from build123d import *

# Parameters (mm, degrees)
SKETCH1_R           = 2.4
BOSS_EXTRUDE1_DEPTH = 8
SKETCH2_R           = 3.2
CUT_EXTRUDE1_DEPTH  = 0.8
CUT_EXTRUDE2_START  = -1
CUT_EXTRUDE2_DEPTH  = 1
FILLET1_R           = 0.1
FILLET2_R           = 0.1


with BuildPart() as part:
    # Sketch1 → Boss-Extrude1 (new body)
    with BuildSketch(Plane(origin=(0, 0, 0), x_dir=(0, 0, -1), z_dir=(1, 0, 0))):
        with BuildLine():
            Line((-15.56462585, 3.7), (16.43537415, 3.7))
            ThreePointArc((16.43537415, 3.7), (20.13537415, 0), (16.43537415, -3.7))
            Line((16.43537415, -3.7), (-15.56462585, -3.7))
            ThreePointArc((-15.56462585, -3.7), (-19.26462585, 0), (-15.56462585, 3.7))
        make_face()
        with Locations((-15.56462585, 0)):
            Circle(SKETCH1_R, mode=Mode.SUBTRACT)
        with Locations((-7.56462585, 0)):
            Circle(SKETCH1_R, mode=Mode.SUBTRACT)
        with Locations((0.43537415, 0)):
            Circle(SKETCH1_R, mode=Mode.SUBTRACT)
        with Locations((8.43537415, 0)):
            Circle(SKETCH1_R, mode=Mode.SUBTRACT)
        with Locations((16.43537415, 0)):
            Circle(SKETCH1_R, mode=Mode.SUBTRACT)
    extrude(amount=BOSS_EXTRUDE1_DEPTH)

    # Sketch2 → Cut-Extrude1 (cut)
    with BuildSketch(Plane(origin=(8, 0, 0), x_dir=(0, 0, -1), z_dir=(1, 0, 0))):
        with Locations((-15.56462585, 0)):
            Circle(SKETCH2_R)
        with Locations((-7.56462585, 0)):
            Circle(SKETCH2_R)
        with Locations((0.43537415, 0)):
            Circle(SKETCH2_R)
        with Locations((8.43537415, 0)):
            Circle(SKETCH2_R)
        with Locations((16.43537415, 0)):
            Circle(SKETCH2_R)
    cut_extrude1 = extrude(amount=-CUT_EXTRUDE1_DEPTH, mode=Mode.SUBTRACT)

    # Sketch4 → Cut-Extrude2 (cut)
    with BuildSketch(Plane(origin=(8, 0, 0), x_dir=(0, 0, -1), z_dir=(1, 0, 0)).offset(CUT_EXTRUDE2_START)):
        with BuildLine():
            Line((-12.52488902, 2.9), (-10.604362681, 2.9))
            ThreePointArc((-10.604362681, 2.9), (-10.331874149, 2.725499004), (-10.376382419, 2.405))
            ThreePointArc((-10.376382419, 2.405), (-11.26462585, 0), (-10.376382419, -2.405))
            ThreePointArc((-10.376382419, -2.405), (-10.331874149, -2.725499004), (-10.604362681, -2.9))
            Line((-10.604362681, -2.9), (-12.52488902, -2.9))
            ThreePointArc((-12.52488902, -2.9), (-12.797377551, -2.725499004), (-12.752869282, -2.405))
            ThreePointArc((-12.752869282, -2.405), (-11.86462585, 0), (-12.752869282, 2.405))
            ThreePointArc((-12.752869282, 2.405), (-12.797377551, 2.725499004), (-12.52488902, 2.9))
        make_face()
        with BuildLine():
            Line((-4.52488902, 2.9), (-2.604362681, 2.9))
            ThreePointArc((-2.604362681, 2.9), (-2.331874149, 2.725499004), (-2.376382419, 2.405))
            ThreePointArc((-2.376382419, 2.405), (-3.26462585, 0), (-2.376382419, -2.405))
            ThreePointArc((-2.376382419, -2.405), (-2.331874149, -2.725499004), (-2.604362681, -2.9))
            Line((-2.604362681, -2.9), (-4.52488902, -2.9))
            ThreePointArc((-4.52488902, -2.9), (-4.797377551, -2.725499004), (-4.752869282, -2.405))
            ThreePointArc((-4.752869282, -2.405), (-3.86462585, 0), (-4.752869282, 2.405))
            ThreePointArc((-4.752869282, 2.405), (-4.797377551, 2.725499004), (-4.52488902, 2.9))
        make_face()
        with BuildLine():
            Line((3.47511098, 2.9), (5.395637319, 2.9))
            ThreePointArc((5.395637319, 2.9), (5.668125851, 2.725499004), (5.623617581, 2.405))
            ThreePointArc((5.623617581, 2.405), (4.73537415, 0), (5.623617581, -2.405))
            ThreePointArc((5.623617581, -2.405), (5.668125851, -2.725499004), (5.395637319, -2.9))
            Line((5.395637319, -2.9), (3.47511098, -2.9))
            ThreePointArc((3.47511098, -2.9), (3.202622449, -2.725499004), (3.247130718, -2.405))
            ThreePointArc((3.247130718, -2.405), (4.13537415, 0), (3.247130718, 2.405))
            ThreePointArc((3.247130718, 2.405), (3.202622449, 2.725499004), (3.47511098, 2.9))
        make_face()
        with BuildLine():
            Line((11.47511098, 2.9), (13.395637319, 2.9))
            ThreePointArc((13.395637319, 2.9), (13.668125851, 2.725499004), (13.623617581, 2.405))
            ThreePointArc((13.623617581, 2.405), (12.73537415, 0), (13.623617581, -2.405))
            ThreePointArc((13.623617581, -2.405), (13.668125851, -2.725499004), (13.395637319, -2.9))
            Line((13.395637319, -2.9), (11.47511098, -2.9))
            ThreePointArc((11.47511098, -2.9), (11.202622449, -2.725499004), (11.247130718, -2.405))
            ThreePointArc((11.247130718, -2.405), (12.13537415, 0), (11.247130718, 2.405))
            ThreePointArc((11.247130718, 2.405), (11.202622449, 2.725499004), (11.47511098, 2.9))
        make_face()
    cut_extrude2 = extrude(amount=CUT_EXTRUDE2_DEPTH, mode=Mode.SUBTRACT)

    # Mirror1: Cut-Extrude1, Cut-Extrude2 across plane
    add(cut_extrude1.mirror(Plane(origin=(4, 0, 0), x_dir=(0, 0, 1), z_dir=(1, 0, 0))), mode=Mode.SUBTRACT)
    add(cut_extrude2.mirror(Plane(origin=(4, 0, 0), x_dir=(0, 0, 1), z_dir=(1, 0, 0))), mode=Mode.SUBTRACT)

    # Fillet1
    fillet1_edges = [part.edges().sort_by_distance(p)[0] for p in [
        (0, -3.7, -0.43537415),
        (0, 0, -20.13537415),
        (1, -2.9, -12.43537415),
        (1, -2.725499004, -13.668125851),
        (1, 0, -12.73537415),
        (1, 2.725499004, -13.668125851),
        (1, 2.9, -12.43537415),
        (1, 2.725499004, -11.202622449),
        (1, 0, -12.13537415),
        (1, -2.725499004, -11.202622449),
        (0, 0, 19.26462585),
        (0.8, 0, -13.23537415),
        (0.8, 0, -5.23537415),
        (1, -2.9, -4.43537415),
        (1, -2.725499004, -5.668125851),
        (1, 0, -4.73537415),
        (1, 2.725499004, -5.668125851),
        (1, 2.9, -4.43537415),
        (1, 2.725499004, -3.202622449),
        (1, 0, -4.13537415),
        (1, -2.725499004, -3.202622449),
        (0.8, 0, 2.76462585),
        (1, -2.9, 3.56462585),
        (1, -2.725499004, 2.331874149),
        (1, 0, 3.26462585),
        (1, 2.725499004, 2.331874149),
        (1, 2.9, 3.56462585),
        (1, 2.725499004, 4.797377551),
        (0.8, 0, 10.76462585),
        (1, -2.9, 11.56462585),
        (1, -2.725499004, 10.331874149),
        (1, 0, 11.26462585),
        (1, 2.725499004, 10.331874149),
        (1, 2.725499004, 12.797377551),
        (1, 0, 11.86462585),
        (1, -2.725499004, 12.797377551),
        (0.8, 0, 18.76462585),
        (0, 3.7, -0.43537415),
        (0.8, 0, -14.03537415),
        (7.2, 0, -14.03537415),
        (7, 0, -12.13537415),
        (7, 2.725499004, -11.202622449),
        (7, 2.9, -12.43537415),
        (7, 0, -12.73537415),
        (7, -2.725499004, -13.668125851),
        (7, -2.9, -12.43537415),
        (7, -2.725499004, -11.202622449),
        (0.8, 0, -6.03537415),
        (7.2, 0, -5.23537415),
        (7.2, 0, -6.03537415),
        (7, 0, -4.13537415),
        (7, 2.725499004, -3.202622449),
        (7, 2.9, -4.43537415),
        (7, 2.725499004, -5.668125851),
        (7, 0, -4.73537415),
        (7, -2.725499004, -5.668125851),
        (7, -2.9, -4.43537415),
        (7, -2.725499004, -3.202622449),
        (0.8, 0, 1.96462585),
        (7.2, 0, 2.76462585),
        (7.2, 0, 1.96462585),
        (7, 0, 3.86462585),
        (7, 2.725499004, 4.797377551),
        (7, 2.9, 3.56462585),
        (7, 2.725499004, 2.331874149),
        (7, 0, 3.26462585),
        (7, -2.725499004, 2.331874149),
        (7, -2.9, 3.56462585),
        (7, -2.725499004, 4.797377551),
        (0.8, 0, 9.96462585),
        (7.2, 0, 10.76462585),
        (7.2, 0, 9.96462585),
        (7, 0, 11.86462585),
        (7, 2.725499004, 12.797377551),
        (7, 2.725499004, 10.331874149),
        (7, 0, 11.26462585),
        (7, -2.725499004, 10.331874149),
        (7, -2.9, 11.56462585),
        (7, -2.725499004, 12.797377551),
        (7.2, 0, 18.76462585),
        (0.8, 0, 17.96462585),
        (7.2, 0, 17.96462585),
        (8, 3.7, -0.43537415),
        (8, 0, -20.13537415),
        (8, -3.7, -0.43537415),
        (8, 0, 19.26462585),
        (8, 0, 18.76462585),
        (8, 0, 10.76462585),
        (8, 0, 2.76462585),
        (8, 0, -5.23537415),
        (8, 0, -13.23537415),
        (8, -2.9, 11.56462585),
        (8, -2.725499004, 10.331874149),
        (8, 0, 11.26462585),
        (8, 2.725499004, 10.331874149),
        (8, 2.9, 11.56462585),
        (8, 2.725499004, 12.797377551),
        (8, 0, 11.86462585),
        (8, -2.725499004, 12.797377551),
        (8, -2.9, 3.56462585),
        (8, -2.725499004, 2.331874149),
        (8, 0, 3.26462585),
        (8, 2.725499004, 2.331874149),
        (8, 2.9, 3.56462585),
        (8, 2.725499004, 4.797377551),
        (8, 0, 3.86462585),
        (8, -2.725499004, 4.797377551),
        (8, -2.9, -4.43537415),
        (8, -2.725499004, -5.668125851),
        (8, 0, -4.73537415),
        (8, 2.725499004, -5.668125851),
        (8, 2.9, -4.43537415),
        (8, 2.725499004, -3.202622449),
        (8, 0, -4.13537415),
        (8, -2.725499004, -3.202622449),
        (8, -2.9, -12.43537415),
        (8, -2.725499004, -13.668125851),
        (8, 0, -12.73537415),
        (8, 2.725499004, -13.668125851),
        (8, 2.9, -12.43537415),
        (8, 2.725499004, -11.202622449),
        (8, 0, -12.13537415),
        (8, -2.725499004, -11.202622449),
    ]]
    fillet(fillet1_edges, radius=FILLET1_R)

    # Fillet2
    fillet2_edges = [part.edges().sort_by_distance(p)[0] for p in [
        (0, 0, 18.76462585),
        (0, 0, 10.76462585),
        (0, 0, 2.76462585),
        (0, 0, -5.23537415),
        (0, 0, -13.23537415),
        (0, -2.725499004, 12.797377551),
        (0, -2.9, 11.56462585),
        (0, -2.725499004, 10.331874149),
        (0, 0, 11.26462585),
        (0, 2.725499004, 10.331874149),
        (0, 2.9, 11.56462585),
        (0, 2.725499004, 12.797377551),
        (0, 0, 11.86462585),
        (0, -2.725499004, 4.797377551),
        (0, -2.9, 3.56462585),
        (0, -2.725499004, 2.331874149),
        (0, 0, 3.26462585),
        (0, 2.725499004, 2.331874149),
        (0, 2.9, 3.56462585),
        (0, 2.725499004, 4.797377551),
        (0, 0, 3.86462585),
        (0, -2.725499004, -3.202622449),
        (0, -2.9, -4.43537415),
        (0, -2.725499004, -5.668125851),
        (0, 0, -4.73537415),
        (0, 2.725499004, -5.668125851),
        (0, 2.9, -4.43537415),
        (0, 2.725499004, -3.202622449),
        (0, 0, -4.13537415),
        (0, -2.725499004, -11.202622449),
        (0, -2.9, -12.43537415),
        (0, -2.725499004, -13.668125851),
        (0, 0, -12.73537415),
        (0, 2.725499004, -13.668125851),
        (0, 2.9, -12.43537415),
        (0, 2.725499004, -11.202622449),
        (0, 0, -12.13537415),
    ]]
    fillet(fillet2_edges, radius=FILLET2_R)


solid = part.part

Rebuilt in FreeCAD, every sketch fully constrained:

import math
import FreeCAD as App
import Part
import Sketcher
Q = App.Units.Quantity


def edges_at(feature, points):
    """Names of the edges that pass closest to the given points."""
    edges = feature.Shape.Edges
    near = lambda p: min(range(len(edges)), key=lambda i: edges[i].distToShape(Part.Vertex(*p))[0])
    return sorted({f"Edge{near(p) + 1}" for p in points})

doc = App.newDocument("Part")
body = doc.addObject("PartDesign::Body", "Body")

# Sketch on YZ plane
sketch1 = body.newObject("Sketcher::SketchObject", "Sketch")
sketch1.AttachmentSupport = (doc.getObject("YZ_Plane"), [""])
sketch1.MapMode = "FlatFace"
sketch1.addGeometry([
    Part.LineSegment(App.Vector(3.7, -16.4, 0), App.Vector(3.7, 15.6, 0)),  # 0
    Part.ArcOfCircle(Part.Circle(App.Vector(0, 15.6, 0), App.Vector(0, 0, 1), 3.7), math.radians(0), math.radians(180)),  # 1
    Part.LineSegment(App.Vector(-3.7, 15.6, 0), App.Vector(-3.7, -16.4, 0)),  # 2
    Part.ArcOfCircle(Part.Circle(App.Vector(0, -16.4, 0), App.Vector(0, 0, 1), 3.7), math.radians(180), math.radians(360)),  # 3
    Part.Circle(App.Vector(0, -16.4, 0), App.Vector(0, 0, 1), 2.4),  # 4
    Part.Circle(App.Vector(0, -8.4, 0), App.Vector(0, 0, 1), 2.4),  # 5
    Part.Circle(App.Vector(0, -0.4, 0), App.Vector(0, 0, 1), 2.4),  # 6
    Part.Circle(App.Vector(0, 7.6, 0), App.Vector(0, 0, 1), 2.4),  # 7
    Part.Circle(App.Vector(0, 15.6, 0), App.Vector(0, 0, 1), 2.4),  # 8
], False)
sketch1.addConstraint([
    Sketcher.Constraint("Tangent", 0, 2, 1, 1),
    Sketcher.Constraint("Tangent", 1, 2, 2, 1),
    Sketcher.Constraint("Tangent", 2, 2, 3, 1),
    Sketcher.Constraint("Tangent", 3, 2, 0, 1),
    Sketcher.Constraint("Vertical", 0),
    Sketcher.Constraint("Vertical", 2),
    Sketcher.Constraint("Coincident", 4, 3, 3, 3),
    Sketcher.Constraint("Coincident", 8, 3, 1, 3),
    Sketcher.Constraint("Equal", 4, 5),
    Sketcher.Constraint("Equal", 5, 6),
    Sketcher.Constraint("Equal", 6, 7),
    Sketcher.Constraint("Equal", 7, 8),
    Sketcher.Constraint("PointOnObject", 1, 3, -2),
    Sketcher.Constraint("PointOnObject", 5, 3, -2),
    Sketcher.Constraint("PointOnObject", 6, 3, -2),
    Sketcher.Constraint("PointOnObject", 7, 3, -2),
    Sketcher.Constraint("Diameter", 4, Q("4.8 mm")),
    Sketcher.Constraint("Radius", 1, Q("3.7 mm")),
    Sketcher.Constraint("DistanceY", 0, 1, 0, 2, Q("32 mm")),
    Sketcher.Constraint("DistanceY", 3, 3, 5, 3, Q("8 mm")),
    Sketcher.Constraint("DistanceY", 5, 3, 6, 3, Q("8 mm")),
    Sketcher.Constraint("DistanceY", 7, 3, 1, 3, Q("8 mm")),
    Sketcher.Constraint("DistanceY", -1, 1, 1, 3, Q("15.564626 mm")),
])
pad1 = body.newObject("PartDesign::Pad", "Pad")
pad1.Profile = sketch1
pad1.Length = 8

# Sketch on YZ plane
sketch2 = body.newObject("Sketcher::SketchObject", "Sketch001")
sketch2.AttachmentSupport = (doc.getObject("YZ_Plane"), [""])
sketch2.MapMode = "FlatFace"
sketch2.AttachmentOffset = App.Placement(App.Vector(0, 0, 8), App.Rotation())
sketch2.addGeometry([
    Part.Circle(App.Vector(0, 15.6, 0), App.Vector(0, 0, 1), 3.2),  # 0
    Part.Circle(App.Vector(0, 7.6, 0), App.Vector(0, 0, 1), 3.2),  # 1
    Part.Circle(App.Vector(0, -0.4, 0), App.Vector(0, 0, 1), 3.2),  # 2
    Part.Circle(App.Vector(0, -8.4, 0), App.Vector(0, 0, 1), 3.2),  # 3
    Part.Circle(App.Vector(0, -16.4, 0), App.Vector(0, 0, 1), 3.2),  # 4
], False)
sketch2.addConstraint([
    Sketcher.Constraint("Equal", 0, 1),
    Sketcher.Constraint("Equal", 1, 2),
    Sketcher.Constraint("Equal", 2, 3),
    Sketcher.Constraint("Equal", 3, 4),
    Sketcher.Constraint("PointOnObject", 0, 3, -2),
    Sketcher.Constraint("PointOnObject", 1, 3, -2),
    Sketcher.Constraint("PointOnObject", 2, 3, -2),
    Sketcher.Constraint("PointOnObject", 3, 3, -2),
    Sketcher.Constraint("PointOnObject", 4, 3, -2),
    Sketcher.Constraint("Diameter", 0, Q("6.4 mm")),
    Sketcher.Constraint("DistanceY", 1, 3, 0, 3, Q("8 mm")),
    Sketcher.Constraint("DistanceY", 2, 3, 1, 3, Q("8 mm")),
    Sketcher.Constraint("DistanceY", 3, 3, 2, 3, Q("8 mm")),
    Sketcher.Constraint("DistanceY", 4, 3, 3, 3, Q("8 mm")),
    Sketcher.Constraint("DistanceY", -1, 1, 0, 3, Q("15.564626 mm")),
])
pocket1 = body.newObject("PartDesign::Pocket", "Pocket")
pocket1.Profile = sketch2
pocket1.Length = 0.8

# Sketch on YZ plane
sketch3 = body.newObject("Sketcher::SketchObject", "Sketch002")
sketch3.AttachmentSupport = (doc.getObject("YZ_Plane"), [""])
sketch3.MapMode = "FlatFace"
sketch3.AttachmentOffset = App.Placement(App.Vector(0, 0, 7), App.Rotation())
sketch3.addGeometry([
    Part.LineSegment(App.Vector(2.9, 10.6, 0), App.Vector(2.9, 12.52, 0)),  # 0
    Part.ArcOfCircle(Part.Circle(App.Vector(2.6, 12.52, 0), App.Vector(0, 0, 1), 0.3), math.radians(0), math.radians(131)),  # 1
    Part.ArcOfCircle(Part.Circle(App.Vector(0, 15.56, 0), App.Vector(0, 0, 1), 3.7), math.radians(-131), math.radians(-49)),  # 2
    Part.ArcOfCircle(Part.Circle(App.Vector(-2.6, 12.52, 0), App.Vector(0, 0, 1), 0.3), math.radians(49), math.radians(180)),  # 3
    Part.LineSegment(App.Vector(-2.9, 12.52, 0), App.Vector(-2.9, 10.6, 0)),  # 4
    Part.ArcOfCircle(Part.Circle(App.Vector(-2.6, 10.6, 0), App.Vector(0, 0, 1), 0.3), math.radians(180), math.radians(311)),  # 5
    Part.ArcOfCircle(Part.Circle(App.Vector(0, 7.56, 0), App.Vector(0, 0, 1), 3.7), math.radians(49), math.radians(131)),  # 6
    Part.ArcOfCircle(Part.Circle(App.Vector(2.6, 10.6, 0), App.Vector(0, 0, 1), 0.3), math.radians(-131), math.radians(0)),  # 7
    Part.LineSegment(App.Vector(2.9, 2.6, 0), App.Vector(2.9, 4.52, 0)),  # 8
    Part.ArcOfCircle(Part.Circle(App.Vector(2.6, 4.52, 0), App.Vector(0, 0, 1), 0.3), math.radians(0), math.radians(131)),  # 9
    Part.ArcOfCircle(Part.Circle(App.Vector(0, 7.56, 0), App.Vector(0, 0, 1), 3.7), math.radians(-131), math.radians(-49)),  # 10
    Part.ArcOfCircle(Part.Circle(App.Vector(-2.6, 4.52, 0), App.Vector(0, 0, 1), 0.3), math.radians(49), math.radians(180)),  # 11
    Part.LineSegment(App.Vector(-2.9, 4.52, 0), App.Vector(-2.9, 2.6, 0)),  # 12
    Part.ArcOfCircle(Part.Circle(App.Vector(-2.6, 2.6, 0), App.Vector(0, 0, 1), 0.3), math.radians(180), math.radians(311)),  # 13
    Part.ArcOfCircle(Part.Circle(App.Vector(0, -0.44, 0), App.Vector(0, 0, 1), 3.7), math.radians(49), math.radians(131)),  # 14
    Part.ArcOfCircle(Part.Circle(App.Vector(2.6, 2.6, 0), App.Vector(0, 0, 1), 0.3), math.radians(-131), math.radians(0)),  # 15
    Part.LineSegment(App.Vector(2.9, -5.4, 0), App.Vector(2.9, -3.48, 0)),  # 16
    Part.ArcOfCircle(Part.Circle(App.Vector(2.6, -3.48, 0), App.Vector(0, 0, 1), 0.3), math.radians(0), math.radians(131)),  # 17
    Part.ArcOfCircle(Part.Circle(App.Vector(0, -0.44, 0), App.Vector(0, 0, 1), 3.7), math.radians(-131), math.radians(-49)),  # 18
    Part.ArcOfCircle(Part.Circle(App.Vector(-2.6, -3.48, 0), App.Vector(0, 0, 1), 0.3), math.radians(49), math.radians(180)),  # 19
    Part.LineSegment(App.Vector(-2.9, -3.48, 0), App.Vector(-2.9, -5.4, 0)),  # 20
    Part.ArcOfCircle(Part.Circle(App.Vector(-2.6, -5.4, 0), App.Vector(0, 0, 1), 0.3), math.radians(180), math.radians(311)),  # 21
    Part.ArcOfCircle(Part.Circle(App.Vector(0, -8.44, 0), App.Vector(0, 0, 1), 3.7), math.radians(49), math.radians(131)),  # 22
    Part.ArcOfCircle(Part.Circle(App.Vector(2.6, -5.4, 0), App.Vector(0, 0, 1), 0.3), math.radians(-131), math.radians(0)),  # 23
    Part.LineSegment(App.Vector(2.9, -13.4, 0), App.Vector(2.9, -11.48, 0)),  # 24
    Part.ArcOfCircle(Part.Circle(App.Vector(2.6, -11.48, 0), App.Vector(0, 0, 1), 0.3), math.radians(0), math.radians(131)),  # 25
    Part.ArcOfCircle(Part.Circle(App.Vector(0, -8.44, 0), App.Vector(0, 0, 1), 3.7), math.radians(-131), math.radians(-49)),  # 26
    Part.ArcOfCircle(Part.Circle(App.Vector(-2.6, -11.48, 0), App.Vector(0, 0, 1), 0.3), math.radians(49), math.radians(180)),  # 27
    Part.LineSegment(App.Vector(-2.9, -11.48, 0), App.Vector(-2.9, -13.4, 0)),  # 28
    Part.ArcOfCircle(Part.Circle(App.Vector(-2.6, -13.4, 0), App.Vector(0, 0, 1), 0.3), math.radians(180), math.radians(311)),  # 29
    Part.ArcOfCircle(Part.Circle(App.Vector(0, -16.44, 0), App.Vector(0, 0, 1), 3.7), math.radians(49), math.radians(131)),  # 30
    Part.ArcOfCircle(Part.Circle(App.Vector(2.6, -13.4, 0), App.Vector(0, 0, 1), 0.3), math.radians(-131), math.radians(0)),  # 31
], False)
sketch3.addConstraint([
    Sketcher.Constraint("Tangent", 0, 2, 1, 1),
    Sketcher.Constraint("Tangent", 1, 2, 2, 2),
    Sketcher.Constraint("Tangent", 2, 1, 3, 1),
    Sketcher.Constraint("Tangent", 3, 2, 4, 1),
    Sketcher.Constraint("Tangent", 4, 2, 5, 1),
    Sketcher.Constraint("Tangent", 5, 2, 6, 2),
    Sketcher.Constraint("Tangent", 6, 1, 7, 1),
    Sketcher.Constraint("Tangent", 7, 2, 0, 1),
    Sketcher.Constraint("Tangent", 8, 2, 9, 1),
    Sketcher.Constraint("Tangent", 9, 2, 10, 2),
    Sketcher.Constraint("Tangent", 10, 1, 11, 1),
    Sketcher.Constraint("Tangent", 11, 2, 12, 1),
    Sketcher.Constraint("Tangent", 12, 2, 13, 1),
    Sketcher.Constraint("Tangent", 13, 2, 14, 2),
    Sketcher.Constraint("Tangent", 14, 1, 15, 1),
    Sketcher.Constraint("Tangent", 15, 2, 8, 1),
    Sketcher.Constraint("Tangent", 16, 2, 17, 1),
    Sketcher.Constraint("Tangent", 17, 2, 18, 2),
    Sketcher.Constraint("Tangent", 18, 1, 19, 1),
    Sketcher.Constraint("Tangent", 19, 2, 20, 1),
    Sketcher.Constraint("Tangent", 20, 2, 21, 1),
    Sketcher.Constraint("Tangent", 21, 2, 22, 2),
    Sketcher.Constraint("Tangent", 22, 1, 23, 1),
    Sketcher.Constraint("Tangent", 23, 2, 16, 1),
    Sketcher.Constraint("Tangent", 24, 2, 25, 1),
    Sketcher.Constraint("Tangent", 25, 2, 26, 2),
    Sketcher.Constraint("Tangent", 26, 1, 27, 1),
    Sketcher.Constraint("Tangent", 27, 2, 28, 1),
    Sketcher.Constraint("Tangent", 28, 2, 29, 1),
    Sketcher.Constraint("Tangent", 29, 2, 30, 2),
    Sketcher.Constraint("Tangent", 30, 1, 31, 1),
    Sketcher.Constraint("Tangent", 31, 2, 24, 1),
    Sketcher.Constraint("Vertical", 0),
    Sketcher.Constraint("Vertical", 4),
    Sketcher.Constraint("Vertical", 8),
    Sketcher.Constraint("Vertical", 12),
    Sketcher.Constraint("Vertical", 16),
    Sketcher.Constraint("Vertical", 20),
    Sketcher.Constraint("Vertical", 24),
    Sketcher.Constraint("Vertical", 28),
    Sketcher.Constraint("Coincident", 10, 3, 6, 3),
    Sketcher.Constraint("Coincident", 18, 3, 14, 3),
    Sketcher.Constraint("Coincident", 26, 3, 22, 3),
    Sketcher.Constraint("Equal", 1, 3),
    Sketcher.Constraint("Equal", 3, 5),
    Sketcher.Constraint("Equal", 2, 6),
    Sketcher.Constraint("Equal", 5, 7),
    Sketcher.Constraint("Equal", 7, 9),
    Sketcher.Constraint("Equal", 6, 10),
    Sketcher.Constraint("Equal", 9, 11),
    Sketcher.Constraint("Equal", 11, 13),
    Sketcher.Constraint("Equal", 10, 14),
    Sketcher.Constraint("Equal", 13, 15),
    Sketcher.Constraint("Equal", 15, 17),
    Sketcher.Constraint("Equal", 14, 18),
    Sketcher.Constraint("Equal", 17, 19),
    Sketcher.Constraint("Equal", 19, 21),
    Sketcher.Constraint("Equal", 18, 22),
    Sketcher.Constraint("Equal", 21, 23),
    Sketcher.Constraint("Equal", 23, 25),
    Sketcher.Constraint("Equal", 22, 26),
    Sketcher.Constraint("Equal", 25, 27),
    Sketcher.Constraint("Equal", 27, 29),
    Sketcher.Constraint("Equal", 26, 30),
    Sketcher.Constraint("Equal", 29, 31),
    Sketcher.Constraint("Symmetric", 1, 3, 3, 3, -2),
    Sketcher.Constraint("Symmetric", 9, 3, 11, 3, -2),
    Sketcher.Constraint("Symmetric", 17, 3, 19, 3, -2),
    Sketcher.Constraint("Symmetric", 25, 3, 27, 3, -2),
    Sketcher.Constraint("PointOnObject", 30, 3, -2),
    Sketcher.Constraint("Vertical", 7, 3, 9, 3),
    Sketcher.Constraint("Vertical", 15, 3, 17, 3),
    Sketcher.Constraint("Vertical", 23, 3, 25, 3),
    Sketcher.Constraint("Equal", 4, 8),
    Sketcher.Constraint("Equal", 12, 16),
    Sketcher.Constraint("Equal", 20, 24),
    Sketcher.Constraint("Radius", 1, Q("0.3 mm")),
    Sketcher.Constraint("Radius", 2, Q("3.7 mm")),
    Sketcher.Constraint("DistanceY", 6, 3, 2, 3, Q("8 mm")),
    Sketcher.Constraint("DistanceX", -1, 1, 1, 3, Q("2.6 mm")),
    Sketcher.Constraint("DistanceY", -1, 1, 1, 3, Q("12.524889 mm")),
])
pocket2 = body.newObject("PartDesign::Pocket", "Pocket001")
pocket2.Profile = sketch3
pocket2.Length = 1
pocket2.Reversed = True
doc.recompute()

datumplane = body.newObject("PartDesign::Plane", "DatumPlane")
datumplane.AttachmentSupport = (doc.getObject("YZ_Plane"), [""])
datumplane.MapMode = "FlatFace"
datumplane.AttachmentOffset = App.Placement(App.Vector(0, 0, 4), App.Rotation())
mirrored = body.newObject("PartDesign::Mirrored", "Mirrored")
mirrored.Originals = [pocket1, pocket2]
mirrored.MirrorPlane = (datumplane, [""])
body.Tip = mirrored
doc.recompute()

fillet = body.newObject("PartDesign::Fillet", "Fillet")
fillet.Base = (mirrored, edges_at(mirrored, [
    (0, -3.7, -0.435),
    (0, 0, -20.135),
    (1, -2.9, -12.435),
    (1, -2.725, -13.668),
    (1, 0, -12.735),
    (1, 2.725, -13.668),
    (1, 2.9, -12.435),
    (1, 2.725, -11.203),
    (1, 0, -12.135),
    (1, -2.725, -11.203),
    (0, 0, 19.265),
    (0.8, 0, -13.235),
    (0.8, 0, -5.235),
    (1, -2.9, -4.435),
    (1, -2.725, -5.668),
    (1, 0, -4.735),
    (1, 2.725, -5.668),
    (1, 2.9, -4.435),
    (1, 2.725, -3.203),
    (1, 0, -4.135),
    (1, -2.725, -3.203),
    (0.8, 0, 2.765),
    (1, -2.9, 3.565),
    (1, -2.725, 2.332),
    (1, 0, 3.265),
    (1, 2.725, 2.332),
    (1, 2.9, 3.565),
    (1, 2.725, 4.797),
    (0.8, 0, 10.765),
    (1, -2.9, 11.565),
    (1, -2.725, 10.332),
    (1, 0, 11.265),
    (1, 2.725, 10.332),
    (1, 2.725, 12.797),
    (1, 0, 11.865),
    (1, -2.725, 12.797),
    (0.8, 0, 18.765),
    (0, 3.7, -0.435),
    (0.8, 0, -14.035),
    (7.2, 0, -14.035),
    (7, 0, -12.135),
    (7, 2.725, -11.203),
    (7, 2.9, -12.435),
    (7, 0, -12.735),
    (7, -2.725, -13.668),
    (7, -2.9, -12.435),
    (7, -2.725, -11.203),
    (0.8, 0, -6.035),
    (7.2, 0, -5.235),
    (7.2, 0, -6.035),
    (7, 0, -4.135),
    (7, 2.725, -3.203),
    (7, 2.9, -4.435),
    (7, 2.725, -5.668),
    (7, 0, -4.735),
    (7, -2.725, -5.668),
    (7, -2.9, -4.435),
    (7, -2.725, -3.203),
    (0.8, 0, 1.965),
    (7.2, 0, 2.765),
    (7.2, 0, 1.965),
    (7, 0, 3.865),
    (7, 2.725, 4.797),
    (7, 2.9, 3.565),
    (7, 2.725, 2.332),
    (7, 0, 3.265),
    (7, -2.725, 2.332),
    (7, -2.9, 3.565),
    (7, -2.725, 4.797),
    (0.8, 0, 9.965),
    (7.2, 0, 10.765),
    (7.2, 0, 9.965),
    (7, 0, 11.865),
    (7, 2.725, 12.797),
    (7, 2.725, 10.332),
    (7, 0, 11.265),
    (7, -2.725, 10.332),
    (7, -2.9, 11.565),
    (7, -2.725, 12.797),
    (7.2, 0, 18.765),
    (0.8, 0, 17.965),
    (7.2, 0, 17.965),
    (8, 3.7, -0.435),
    (8, 0, -20.135),
    (8, -3.7, -0.435),
    (8, 0, 19.265),
    (8, 0, 18.765),
    (8, 0, 10.765),
    (8, 0, 2.765),
    (8, 0, -5.235),
    (8, 0, -13.235),
    (8, -2.9, 11.565),
    (8, -2.725, 10.332),
    (8, 0, 11.265),
    (8, 2.725, 10.332),
    (8, 2.9, 11.565),
    (8, 2.725, 12.797),
    (8, 0, 11.865),
    (8, -2.725, 12.797),
    (8, -2.9, 3.565),
    (8, -2.725, 2.332),
    (8, 0, 3.265),
    (8, 2.725, 2.332),
    (8, 2.9, 3.565),
    (8, 2.725, 4.797),
    (8, 0, 3.865),
    (8, -2.725, 4.797),
    (8, -2.9, -4.435),
    (8, -2.725, -5.668),
    (8, 0, -4.735),
    (8, 2.725, -5.668),
    (8, 2.9, -4.435),
    (8, 2.725, -3.203),
    (8, 0, -4.135),
    (8, -2.725, -3.203),
    (8, -2.9, -12.435),
    (8, -2.725, -13.668),
    (8, 0, -12.735),
    (8, 2.725, -13.668),
    (8, 2.9, -12.435),
    (8, 2.725, -11.203),
    (8, 0, -12.135),
    (8, -2.725, -11.203),
]))
fillet.Radius = 0.1
doc.recompute()

fillet2 = body.newObject("PartDesign::Fillet", "Fillet001")
fillet2.Base = (fillet, edges_at(fillet, [
    (0, 0, 18.765),
    (0, 0, 10.765),
    (0, 0, 2.765),
    (0, 0, -5.235),
    (0, 0, -13.235),
    (0, -2.725, 12.797),
    (0, -2.9, 11.565),
    (0, -2.725, 10.332),
    (0, 0, 11.265),
    (0, 2.725, 10.332),
    (0, 2.9, 11.565),
    (0, 2.725, 12.797),
    (0, 0, 11.865),
    (0, -2.725, 4.797),
    (0, -2.9, 3.565),
    (0, -2.725, 2.332),
    (0, 0, 3.265),
    (0, 2.725, 2.332),
    (0, 2.9, 3.565),
    (0, 2.725, 4.797),
    (0, 0, 3.865),
    (0, -2.725, -3.203),
    (0, -2.9, -4.435),
    (0, -2.725, -5.668),
    (0, 0, -4.735),
    (0, 2.725, -5.668),
    (0, 2.9, -4.435),
    (0, 2.725, -3.203),
    (0, 0, -4.135),
    (0, -2.725, -11.203),
    (0, -2.9, -12.435),
    (0, -2.725, -13.668),
    (0, 0, -12.735),
    (0, 2.725, -13.668),
    (0, 2.9, -12.435),
    (0, 2.725, -11.203),
    (0, 0, -12.135),
]))
fillet2.Radius = 0.1

doc.recompute()
